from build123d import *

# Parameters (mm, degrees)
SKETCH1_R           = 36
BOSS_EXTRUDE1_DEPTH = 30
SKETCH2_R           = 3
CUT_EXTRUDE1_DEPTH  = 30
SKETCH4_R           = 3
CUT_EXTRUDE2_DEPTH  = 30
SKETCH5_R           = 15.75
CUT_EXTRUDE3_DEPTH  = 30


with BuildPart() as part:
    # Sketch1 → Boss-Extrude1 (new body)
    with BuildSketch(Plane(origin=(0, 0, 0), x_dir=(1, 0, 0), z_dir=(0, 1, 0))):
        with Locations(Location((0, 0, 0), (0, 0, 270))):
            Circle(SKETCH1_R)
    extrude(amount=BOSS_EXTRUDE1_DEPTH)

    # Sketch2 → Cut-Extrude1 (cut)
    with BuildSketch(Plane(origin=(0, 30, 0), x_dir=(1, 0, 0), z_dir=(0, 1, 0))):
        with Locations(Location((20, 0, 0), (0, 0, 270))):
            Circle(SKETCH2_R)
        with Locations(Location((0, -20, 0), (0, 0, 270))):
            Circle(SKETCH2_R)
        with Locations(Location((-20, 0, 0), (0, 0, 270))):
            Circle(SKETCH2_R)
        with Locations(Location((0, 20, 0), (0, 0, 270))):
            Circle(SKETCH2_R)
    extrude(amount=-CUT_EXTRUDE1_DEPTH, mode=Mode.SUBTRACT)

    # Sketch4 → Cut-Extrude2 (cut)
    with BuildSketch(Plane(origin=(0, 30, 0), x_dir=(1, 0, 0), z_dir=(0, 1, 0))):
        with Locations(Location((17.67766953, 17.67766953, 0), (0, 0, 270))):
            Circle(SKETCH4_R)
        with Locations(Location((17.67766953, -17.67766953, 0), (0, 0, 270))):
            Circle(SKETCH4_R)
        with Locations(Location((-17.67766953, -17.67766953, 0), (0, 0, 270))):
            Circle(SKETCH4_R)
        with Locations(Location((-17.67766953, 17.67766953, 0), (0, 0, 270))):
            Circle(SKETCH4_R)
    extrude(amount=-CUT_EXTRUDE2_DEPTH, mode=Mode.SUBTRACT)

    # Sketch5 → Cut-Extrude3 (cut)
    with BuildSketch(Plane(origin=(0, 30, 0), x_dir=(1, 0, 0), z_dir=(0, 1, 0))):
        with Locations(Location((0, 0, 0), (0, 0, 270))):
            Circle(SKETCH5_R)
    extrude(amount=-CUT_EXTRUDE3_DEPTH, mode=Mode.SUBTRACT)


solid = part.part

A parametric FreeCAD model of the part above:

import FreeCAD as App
import Part
import Sketcher

doc = App.newDocument("Part")
body = doc.addObject("PartDesign::Body", "Body")

sketch1 = doc.addObject("Sketcher::SketchObject", "Sketch")
body.addObject(sketch1)
sketch1.AttachmentSupport = (doc.XZ_Plane, [""])
sketch1.MapMode = "FlatFace"
sketch1.addGeometry(Part.Circle(App.Vector(0, 0, 0), App.Vector(0, 0, 1), 36), False)
sketch1.addConstraint([
    Sketcher.Constraint("Coincident", 0, 3, -1, 1),
    Sketcher.Constraint("Diameter", 0, 72.0),
])
pad1 = doc.addObject("PartDesign::Pad", "Pad")
body.addObject(pad1)
pad1.Profile = sketch1
pad1.Length = 30
pad1.Reversed = True

sketch2 = doc.addObject("Sketcher::SketchObject", "Sketch001")
body.addObject(sketch2)
sketch2.AttachmentSupport = (doc.XZ_Plane, [""])
sketch2.MapMode = "FlatFace"
sketch2.AttachmentOffset = App.Placement(App.Vector(0, 0, -30), App.Rotation())
sketch2.addGeometry([
    Part.Circle(App.Vector(20, 0, 0), App.Vector(0, 0, 1), 3),
    Part.Circle(App.Vector(0, 20, 0), App.Vector(0, 0, 1), 3),
    Part.Circle(App.Vector(-20, 0, 0), App.Vector(0, 0, 1), 3),
    Part.Circle(App.Vector(0, -20, 0), App.Vector(0, 0, 1), 3),
], False)
sketch2.addConstraint([
    Sketcher.Constraint("Equal", 0, 1),
    Sketcher.Constraint("Equal", 1, 2),
    Sketcher.Constraint("Equal", 2, 3),
    Sketcher.Constraint("Symmetric", 0, 3, 2, 3, -1, 1),
    Sketcher.Constraint("Symmetric", 1, 3, 3, 3, -1, 1),
    Sketcher.Constraint("PointOnObject", 0, 3, -1),
    Sketcher.Constraint("PointOnObject", 1, 3, -2),
    Sketcher.Constraint("Diameter", 0, 6.0),
    Sketcher.Constraint("DistanceX", -1, 1, 0, 3, 20.0),
    Sketcher.Constraint("DistanceY", -1, 1, 1, 3, 20.0),
])
pocket1 = doc.addObject("PartDesign::Pocket", "Pocket")
body.addObject(pocket1)
pocket1.Profile = sketch2
pocket1.Length = 30
pocket1.Reversed = True

sketch3 = doc.addObject("Sketcher::SketchObject", "Sketch002")
body.addObject(sketch3)
sketch3.AttachmentSupport = (doc.XZ_Plane, [""])
sketch3.MapMode = "FlatFace"
sketch3.AttachmentOffset = App.Placement(App.Vector(0, 0, -30), App.Rotation())
sketch3.addGeometry([
    Part.Circle(App.Vector(17.7, -17.7, 0), App.Vector(0, 0, 1), 3),
    Part.Circle(App.Vector(17.7, 17.7, 0), App.Vector(0, 0, 1), 3),
    Part.Circle(App.Vector(-17.7, 17.7, 0), App.Vector(0, 0, 1), 3),
    Part.Circle(App.Vector(-17.7, -17.7, 0), App.Vector(0, 0, 1), 3),
], False)
sketch3.addConstraint([
    Sketcher.Constraint("Equal", 0, 1),
    Sketcher.Constraint("Equal", 1, 2),
    Sketcher.Constraint("Equal", 2, 3),
    Sketcher.Constraint("Symmetric", 0, 3, 2, 3, -1, 1),
    Sketcher.Constraint("Symmetric", 1, 3, 3, 3, -1, 1),
    Sketcher.Constraint("Symmetric", 1, 3, 2, 3, -2),
    Sketcher.Constraint("Diameter", 0, 6.0),
    Sketcher.Constraint("DistanceX", -1, 1, 0, 3, 17.67767),
    Sketcher.Constraint("DistanceY", 0, 3, -1, 1, 17.67767),
])
pocket2 = doc.addObject("PartDesign::Pocket", "Pocket001")
body.addObject(pocket2)
pocket2.Profile = sketch3
pocket2.Length = 30
pocket2.Reversed = True

sketch4 = doc.addObject("Sketcher::SketchObject", "Sketch003")
body.addObject(sketch4)
sketch4.AttachmentSupport = (doc.XZ_Plane, [""])
sketch4.MapMode = "FlatFace"
sketch4.AttachmentOffset = App.Placement(App.Vector(0, 0, -30), App.Rotation())
sketch4.addGeometry(Part.Circle(App.Vector(0, 0, 0), App.Vector(0, 0, 1), 16), False)
sketch4.addConstraint([
    Sketcher.Constraint("Coincident", 0, 3, -1, 1),
    Sketcher.Constraint("Diameter", 0, 31.5),
])
pocket3 = doc.addObject("PartDesign::Pocket", "Pocket002")
body.addObject(pocket3)
pocket3.Profile = sketch4
pocket3.Length = 30
pocket3.Reversed = True

doc.recompute()
